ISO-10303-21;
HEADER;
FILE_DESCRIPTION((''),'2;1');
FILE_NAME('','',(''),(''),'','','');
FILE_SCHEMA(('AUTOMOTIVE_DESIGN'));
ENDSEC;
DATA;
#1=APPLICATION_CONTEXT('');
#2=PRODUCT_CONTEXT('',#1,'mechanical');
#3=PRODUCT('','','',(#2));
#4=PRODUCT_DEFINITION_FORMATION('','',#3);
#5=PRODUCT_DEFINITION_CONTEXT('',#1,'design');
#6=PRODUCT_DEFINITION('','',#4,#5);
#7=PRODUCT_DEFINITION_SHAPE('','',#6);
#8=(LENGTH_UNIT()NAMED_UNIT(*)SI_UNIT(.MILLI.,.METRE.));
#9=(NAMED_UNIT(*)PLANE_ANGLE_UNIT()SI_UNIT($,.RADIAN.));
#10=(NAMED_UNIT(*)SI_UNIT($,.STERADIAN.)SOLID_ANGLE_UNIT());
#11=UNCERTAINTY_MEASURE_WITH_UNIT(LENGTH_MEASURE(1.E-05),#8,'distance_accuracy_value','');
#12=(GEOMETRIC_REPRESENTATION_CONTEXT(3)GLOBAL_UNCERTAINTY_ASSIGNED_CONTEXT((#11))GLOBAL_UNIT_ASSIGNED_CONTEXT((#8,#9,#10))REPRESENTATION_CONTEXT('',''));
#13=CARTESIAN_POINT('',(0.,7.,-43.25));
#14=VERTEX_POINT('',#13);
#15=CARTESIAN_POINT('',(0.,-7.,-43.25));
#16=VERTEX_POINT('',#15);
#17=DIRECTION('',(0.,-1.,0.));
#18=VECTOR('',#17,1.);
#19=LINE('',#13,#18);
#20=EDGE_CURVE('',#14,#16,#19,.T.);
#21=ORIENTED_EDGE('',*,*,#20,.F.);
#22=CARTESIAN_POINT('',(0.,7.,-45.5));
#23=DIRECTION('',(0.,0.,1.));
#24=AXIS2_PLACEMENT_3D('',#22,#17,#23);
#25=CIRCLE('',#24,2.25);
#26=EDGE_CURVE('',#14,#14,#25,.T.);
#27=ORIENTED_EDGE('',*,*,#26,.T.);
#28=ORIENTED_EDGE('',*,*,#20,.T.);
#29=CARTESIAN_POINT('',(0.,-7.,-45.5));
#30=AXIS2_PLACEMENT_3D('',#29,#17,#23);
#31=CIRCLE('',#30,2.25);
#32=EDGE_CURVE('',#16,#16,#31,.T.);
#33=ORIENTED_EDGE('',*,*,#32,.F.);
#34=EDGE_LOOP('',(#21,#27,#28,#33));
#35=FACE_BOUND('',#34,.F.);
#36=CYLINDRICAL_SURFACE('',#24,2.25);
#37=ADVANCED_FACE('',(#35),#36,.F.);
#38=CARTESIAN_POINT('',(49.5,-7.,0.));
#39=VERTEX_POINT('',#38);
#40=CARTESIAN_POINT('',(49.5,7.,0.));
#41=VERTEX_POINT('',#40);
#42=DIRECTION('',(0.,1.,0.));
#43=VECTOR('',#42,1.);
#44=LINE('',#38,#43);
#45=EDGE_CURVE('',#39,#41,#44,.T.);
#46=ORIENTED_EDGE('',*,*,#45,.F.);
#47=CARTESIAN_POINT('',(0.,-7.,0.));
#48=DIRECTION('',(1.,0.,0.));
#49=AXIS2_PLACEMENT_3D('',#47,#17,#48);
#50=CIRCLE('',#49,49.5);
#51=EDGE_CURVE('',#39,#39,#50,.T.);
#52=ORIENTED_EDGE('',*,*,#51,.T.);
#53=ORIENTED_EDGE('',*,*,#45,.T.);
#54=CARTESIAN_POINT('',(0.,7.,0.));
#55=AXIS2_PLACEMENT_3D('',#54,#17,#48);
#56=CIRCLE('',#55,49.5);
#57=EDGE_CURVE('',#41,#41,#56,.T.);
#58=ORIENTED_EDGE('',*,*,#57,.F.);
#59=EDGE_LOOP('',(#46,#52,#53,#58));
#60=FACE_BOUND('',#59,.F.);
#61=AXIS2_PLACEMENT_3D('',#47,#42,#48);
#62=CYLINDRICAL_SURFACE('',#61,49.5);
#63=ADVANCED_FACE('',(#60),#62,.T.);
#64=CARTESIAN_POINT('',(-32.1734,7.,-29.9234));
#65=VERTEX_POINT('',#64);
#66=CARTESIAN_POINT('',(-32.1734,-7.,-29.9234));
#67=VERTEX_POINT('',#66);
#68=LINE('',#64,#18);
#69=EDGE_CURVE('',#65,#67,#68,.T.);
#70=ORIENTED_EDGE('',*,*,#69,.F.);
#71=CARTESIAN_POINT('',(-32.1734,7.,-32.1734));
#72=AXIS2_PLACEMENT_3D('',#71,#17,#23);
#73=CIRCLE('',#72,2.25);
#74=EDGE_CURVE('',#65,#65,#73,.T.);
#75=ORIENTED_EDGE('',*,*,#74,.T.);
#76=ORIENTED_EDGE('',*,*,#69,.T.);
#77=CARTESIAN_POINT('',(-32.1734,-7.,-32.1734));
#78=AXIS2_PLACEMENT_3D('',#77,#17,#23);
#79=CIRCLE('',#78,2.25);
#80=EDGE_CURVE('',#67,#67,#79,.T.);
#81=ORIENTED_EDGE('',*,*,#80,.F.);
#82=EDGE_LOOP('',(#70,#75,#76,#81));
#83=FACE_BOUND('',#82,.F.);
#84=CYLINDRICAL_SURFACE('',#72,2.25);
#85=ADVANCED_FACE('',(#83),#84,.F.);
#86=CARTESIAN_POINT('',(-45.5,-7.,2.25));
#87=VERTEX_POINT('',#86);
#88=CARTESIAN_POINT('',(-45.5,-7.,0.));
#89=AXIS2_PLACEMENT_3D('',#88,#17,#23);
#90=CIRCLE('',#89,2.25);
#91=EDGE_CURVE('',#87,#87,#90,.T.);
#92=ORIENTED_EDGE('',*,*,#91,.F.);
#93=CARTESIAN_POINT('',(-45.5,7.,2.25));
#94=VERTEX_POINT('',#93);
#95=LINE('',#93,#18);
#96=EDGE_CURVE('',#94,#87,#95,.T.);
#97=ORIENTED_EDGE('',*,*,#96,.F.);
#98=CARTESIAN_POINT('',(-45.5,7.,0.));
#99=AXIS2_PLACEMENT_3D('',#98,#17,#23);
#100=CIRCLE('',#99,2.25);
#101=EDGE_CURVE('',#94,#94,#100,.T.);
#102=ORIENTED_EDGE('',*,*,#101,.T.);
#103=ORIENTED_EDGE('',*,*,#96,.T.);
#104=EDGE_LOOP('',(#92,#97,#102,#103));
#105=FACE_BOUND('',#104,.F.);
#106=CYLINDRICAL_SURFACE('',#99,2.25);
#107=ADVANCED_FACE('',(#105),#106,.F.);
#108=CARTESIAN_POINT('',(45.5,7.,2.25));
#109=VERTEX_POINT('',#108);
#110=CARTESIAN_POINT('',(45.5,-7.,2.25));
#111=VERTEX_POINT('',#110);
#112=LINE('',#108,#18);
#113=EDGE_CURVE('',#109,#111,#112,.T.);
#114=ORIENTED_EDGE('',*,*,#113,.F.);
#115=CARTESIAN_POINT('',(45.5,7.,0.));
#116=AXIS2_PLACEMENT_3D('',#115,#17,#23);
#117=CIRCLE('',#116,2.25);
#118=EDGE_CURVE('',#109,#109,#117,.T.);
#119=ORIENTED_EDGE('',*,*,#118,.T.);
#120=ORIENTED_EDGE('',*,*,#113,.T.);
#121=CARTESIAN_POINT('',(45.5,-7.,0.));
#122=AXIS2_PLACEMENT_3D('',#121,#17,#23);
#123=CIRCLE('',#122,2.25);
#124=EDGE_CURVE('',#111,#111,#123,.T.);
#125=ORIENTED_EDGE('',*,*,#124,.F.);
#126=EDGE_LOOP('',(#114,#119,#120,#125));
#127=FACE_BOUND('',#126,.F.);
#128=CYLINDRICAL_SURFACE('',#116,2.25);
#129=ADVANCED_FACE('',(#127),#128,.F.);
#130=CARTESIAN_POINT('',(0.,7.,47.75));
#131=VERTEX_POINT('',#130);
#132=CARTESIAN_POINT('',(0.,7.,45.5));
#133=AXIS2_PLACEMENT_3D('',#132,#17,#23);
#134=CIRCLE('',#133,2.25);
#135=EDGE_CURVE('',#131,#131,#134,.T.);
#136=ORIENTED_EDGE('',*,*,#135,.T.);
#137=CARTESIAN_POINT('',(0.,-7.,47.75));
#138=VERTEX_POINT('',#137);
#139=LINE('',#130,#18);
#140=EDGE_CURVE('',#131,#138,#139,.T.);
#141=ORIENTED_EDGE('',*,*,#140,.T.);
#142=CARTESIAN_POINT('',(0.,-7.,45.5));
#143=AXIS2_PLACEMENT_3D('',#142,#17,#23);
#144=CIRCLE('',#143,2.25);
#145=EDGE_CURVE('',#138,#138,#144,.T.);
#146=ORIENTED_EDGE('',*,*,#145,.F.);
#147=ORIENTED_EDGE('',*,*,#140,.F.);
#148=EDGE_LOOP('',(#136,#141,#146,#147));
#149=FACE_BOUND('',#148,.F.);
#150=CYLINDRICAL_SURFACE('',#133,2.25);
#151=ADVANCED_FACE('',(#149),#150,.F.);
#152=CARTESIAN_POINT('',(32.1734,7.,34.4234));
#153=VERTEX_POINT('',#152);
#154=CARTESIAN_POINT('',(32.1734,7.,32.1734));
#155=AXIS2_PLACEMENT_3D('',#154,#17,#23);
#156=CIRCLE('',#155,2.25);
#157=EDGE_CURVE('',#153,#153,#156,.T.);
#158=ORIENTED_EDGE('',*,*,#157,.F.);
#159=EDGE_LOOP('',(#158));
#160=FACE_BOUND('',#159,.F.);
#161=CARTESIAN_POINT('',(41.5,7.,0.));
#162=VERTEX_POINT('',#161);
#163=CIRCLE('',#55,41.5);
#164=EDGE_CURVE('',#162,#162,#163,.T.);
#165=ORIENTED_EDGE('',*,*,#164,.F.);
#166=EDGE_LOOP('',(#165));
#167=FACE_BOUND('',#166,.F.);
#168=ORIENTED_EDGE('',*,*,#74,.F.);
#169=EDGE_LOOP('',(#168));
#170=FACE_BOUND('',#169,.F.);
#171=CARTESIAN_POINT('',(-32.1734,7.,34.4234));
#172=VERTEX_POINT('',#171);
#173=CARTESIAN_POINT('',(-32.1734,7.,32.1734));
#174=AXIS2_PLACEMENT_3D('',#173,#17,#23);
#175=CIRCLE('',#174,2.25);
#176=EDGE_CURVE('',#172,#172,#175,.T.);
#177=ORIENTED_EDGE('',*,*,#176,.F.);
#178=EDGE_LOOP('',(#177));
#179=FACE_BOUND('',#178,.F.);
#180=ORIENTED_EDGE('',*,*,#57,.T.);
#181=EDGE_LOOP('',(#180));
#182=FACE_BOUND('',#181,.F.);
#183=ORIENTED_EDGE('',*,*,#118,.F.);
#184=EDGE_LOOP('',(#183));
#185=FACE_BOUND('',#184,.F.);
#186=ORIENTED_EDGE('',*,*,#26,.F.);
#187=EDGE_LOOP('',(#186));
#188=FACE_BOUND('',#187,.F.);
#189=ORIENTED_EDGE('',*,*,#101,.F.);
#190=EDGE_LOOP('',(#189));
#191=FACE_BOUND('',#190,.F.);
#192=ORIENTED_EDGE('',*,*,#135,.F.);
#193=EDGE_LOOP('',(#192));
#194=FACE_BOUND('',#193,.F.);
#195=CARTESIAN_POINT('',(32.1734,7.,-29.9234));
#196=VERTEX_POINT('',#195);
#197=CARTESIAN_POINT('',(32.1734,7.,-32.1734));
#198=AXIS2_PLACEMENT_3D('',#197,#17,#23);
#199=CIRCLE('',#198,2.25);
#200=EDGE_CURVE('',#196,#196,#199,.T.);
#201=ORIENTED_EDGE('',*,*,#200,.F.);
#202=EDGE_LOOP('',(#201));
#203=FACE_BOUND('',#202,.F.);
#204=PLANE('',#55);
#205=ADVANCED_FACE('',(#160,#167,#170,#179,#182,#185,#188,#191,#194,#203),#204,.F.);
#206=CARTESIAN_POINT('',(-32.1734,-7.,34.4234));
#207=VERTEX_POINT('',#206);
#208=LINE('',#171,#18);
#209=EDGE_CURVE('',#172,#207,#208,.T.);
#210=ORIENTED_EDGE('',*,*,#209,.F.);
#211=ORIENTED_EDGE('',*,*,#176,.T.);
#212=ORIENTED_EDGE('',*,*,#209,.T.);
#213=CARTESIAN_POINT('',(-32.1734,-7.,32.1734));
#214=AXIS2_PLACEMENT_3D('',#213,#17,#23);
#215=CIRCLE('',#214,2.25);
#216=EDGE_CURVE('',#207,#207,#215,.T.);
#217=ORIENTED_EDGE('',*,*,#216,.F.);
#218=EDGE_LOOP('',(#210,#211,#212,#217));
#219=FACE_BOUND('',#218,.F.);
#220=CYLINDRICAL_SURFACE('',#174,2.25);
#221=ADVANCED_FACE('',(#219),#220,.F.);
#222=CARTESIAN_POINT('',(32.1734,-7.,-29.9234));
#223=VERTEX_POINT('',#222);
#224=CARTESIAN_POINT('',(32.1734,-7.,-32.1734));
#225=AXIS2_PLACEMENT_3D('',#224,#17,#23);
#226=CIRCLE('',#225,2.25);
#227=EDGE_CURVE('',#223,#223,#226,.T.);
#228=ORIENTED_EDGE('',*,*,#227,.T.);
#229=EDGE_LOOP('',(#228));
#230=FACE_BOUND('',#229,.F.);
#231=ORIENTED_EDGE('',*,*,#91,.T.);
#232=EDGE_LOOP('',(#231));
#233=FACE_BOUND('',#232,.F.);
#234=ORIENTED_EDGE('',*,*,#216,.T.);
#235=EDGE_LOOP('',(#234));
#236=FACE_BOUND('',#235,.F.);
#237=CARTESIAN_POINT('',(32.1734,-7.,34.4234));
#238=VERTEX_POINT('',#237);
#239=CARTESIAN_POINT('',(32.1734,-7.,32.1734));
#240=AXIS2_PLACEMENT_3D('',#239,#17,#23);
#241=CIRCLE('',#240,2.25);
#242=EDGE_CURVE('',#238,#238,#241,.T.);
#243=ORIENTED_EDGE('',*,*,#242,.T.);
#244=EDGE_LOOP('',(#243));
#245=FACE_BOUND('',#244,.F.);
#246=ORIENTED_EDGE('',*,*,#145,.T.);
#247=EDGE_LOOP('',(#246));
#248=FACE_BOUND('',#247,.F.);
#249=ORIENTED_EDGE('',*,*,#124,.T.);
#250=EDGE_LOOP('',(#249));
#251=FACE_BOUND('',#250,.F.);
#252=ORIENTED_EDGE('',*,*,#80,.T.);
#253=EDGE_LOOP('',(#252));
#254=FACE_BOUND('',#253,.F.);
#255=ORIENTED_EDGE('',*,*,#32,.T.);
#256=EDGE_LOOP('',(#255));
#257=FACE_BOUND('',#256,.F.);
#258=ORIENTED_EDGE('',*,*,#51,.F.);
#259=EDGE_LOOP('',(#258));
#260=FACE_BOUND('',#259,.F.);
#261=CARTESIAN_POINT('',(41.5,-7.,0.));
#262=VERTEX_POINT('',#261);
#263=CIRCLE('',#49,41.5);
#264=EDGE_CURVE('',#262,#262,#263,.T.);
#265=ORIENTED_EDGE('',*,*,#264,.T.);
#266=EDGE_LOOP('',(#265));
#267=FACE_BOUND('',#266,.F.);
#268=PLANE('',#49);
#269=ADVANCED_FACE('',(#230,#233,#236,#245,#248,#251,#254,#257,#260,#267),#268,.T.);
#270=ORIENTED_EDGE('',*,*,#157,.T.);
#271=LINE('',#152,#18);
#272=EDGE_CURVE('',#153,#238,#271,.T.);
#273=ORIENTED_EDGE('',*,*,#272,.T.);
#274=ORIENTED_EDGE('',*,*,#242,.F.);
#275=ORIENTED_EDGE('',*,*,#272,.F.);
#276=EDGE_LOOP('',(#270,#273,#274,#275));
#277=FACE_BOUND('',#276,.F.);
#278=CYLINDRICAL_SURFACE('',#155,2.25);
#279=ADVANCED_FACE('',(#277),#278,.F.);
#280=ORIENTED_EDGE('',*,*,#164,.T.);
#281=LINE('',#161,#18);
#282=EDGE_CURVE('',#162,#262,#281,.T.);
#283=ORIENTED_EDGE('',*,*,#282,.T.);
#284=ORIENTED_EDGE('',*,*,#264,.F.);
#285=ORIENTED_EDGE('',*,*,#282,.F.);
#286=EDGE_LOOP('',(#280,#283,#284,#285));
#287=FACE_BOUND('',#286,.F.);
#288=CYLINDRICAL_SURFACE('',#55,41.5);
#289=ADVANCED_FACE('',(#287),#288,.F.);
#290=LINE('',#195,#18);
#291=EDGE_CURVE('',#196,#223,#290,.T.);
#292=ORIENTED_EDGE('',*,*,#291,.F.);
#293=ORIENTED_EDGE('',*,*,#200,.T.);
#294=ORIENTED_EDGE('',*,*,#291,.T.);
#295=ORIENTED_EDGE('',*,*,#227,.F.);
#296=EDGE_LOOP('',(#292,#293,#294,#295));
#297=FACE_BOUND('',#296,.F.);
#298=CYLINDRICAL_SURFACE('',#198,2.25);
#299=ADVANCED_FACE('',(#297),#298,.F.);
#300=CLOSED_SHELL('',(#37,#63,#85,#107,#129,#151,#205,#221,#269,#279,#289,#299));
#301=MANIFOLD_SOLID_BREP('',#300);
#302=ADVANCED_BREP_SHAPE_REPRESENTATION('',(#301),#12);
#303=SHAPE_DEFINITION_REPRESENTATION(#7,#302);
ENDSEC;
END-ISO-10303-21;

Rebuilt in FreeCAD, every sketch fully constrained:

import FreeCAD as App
import Part
import Sketcher

V = App.Vector
Q = App.Units.Quantity


def add_polygon(sketch, points):
    """Adds a closed chain of lines whose ends are joined by coincident constraints."""
    first, n = sketch.GeometryCount, len(points)
    for a, b in zip(points, points[1:] + points[:1]):
        sketch.addGeometry(Part.LineSegment(App.Vector(*a, 0), App.Vector(*b, 0)), False)
    for i in range(n):
        sketch.addConstraint(Sketcher.Constraint("Coincident", first + i, 2, first + (i + 1) % n, 1))

doc = App.newDocument("Part")
body = doc.addObject("PartDesign::Body", "Body")

# Sketch on XY plane
sketch1 = body.newObject("Sketcher::SketchObject", "Sketch")
sketch1.AttachmentSupport = (doc.getObject("XY_Plane"), [""])
sketch1.MapMode = "FlatFace"
add_polygon(sketch1, [(49.5, 7), (41.5, 7), (41.5, -7), (49.5, -7)])  # lines 0-3
sketch1.addConstraint(Sketcher.Constraint("Horizontal", 0))
sketch1.addConstraint(Sketcher.Constraint("Vertical", 1))
sketch1.addConstraint(Sketcher.Constraint("Horizontal", 2))
sketch1.addConstraint(Sketcher.Constraint("Vertical", 3))
sketch1.addConstraint(Sketcher.Constraint("DistanceY", 1, 2, 1, 1, Q("14 mm")))
sketch1.addConstraint(Sketcher.Constraint("DistanceX", 0, 2, 0, 1, Q("8 mm")))
sketch1.addConstraint(Sketcher.Constraint("DistanceY", -1, 1, 0, 2, Q("7 mm")))
sketch1.addConstraint(Sketcher.Constraint("DistanceX", -1, 1, 0, 2, Q("41.5 mm")))
revolution = body.newObject("PartDesign::Revolution", "Revolution")
revolution.Profile = sketch1
revolution.ReferenceAxis = (sketch1, ["V_Axis"])
revolution.Angle = 360

# Sketch on XZ plane
sketch2 = body.newObject("Sketcher::SketchObject", "Sketch001")
sketch2.AttachmentSupport = (doc.getObject("XZ_Plane"), [""])
sketch2.MapMode = "FlatFace"
sketch2.AttachmentOffset = App.Placement(V(0, 0, -7), App.Rotation())
sketch2.addGeometry(Part.Circle(V(-45.5, 0, 0), V(0, 0, 1), 2.25), False)
sketch2.addGeometry(Part.Circle(V(-32.1734, 32.1734, 0), V(0, 0, 1), 2.25), False)
sketch2.addGeometry(Part.Circle(V(0, 45.5, 0), V(0, 0, 1), 2.25), False)
sketch2.addGeometry(Part.Circle(V(32.1734, 32.1734, 0), V(0, 0, 1), 2.25), False)
sketch2.addGeometry(Part.Circle(V(45.5, 0, 0), V(0, 0, 1), 2.25), False)
sketch2.addGeometry(Part.Circle(V(32.1734, -32.1734, 0), V(0, 0, 1), 2.25), False)
sketch2.addGeometry(Part.Circle(V(0, -45.5, 0), V(0, 0, 1), 2.25), False)
sketch2.addGeometry(Part.Circle(V(-32.1734, -32.1734, 0), V(0, 0, 1), 2.25), False)
sketch2.addConstraint(Sketcher.Constraint("Equal", 0, 1))
sketch2.addConstraint(Sketcher.Constraint("Equal", 1, 2))
sketch2.addConstraint(Sketcher.Constraint("Equal", 2, 3))
sketch2.addConstraint(Sketcher.Constraint("Equal", 3, 4))
sketch2.addConstraint(Sketcher.Constraint("Equal", 4, 5))
sketch2.addConstraint(Sketcher.Constraint("Equal", 5, 6))
sketch2.addConstraint(Sketcher.Constraint("Equal", 6, 7))
sketch2.addConstraint(Sketcher.Constraint("Symmetric", 0, 3, 4, 3, -1, 1))
sketch2.addConstraint(Sketcher.Constraint("Symmetric", 1, 3, 5, 3, -1, 1))
sketch2.addConstraint(Sketcher.Constraint("Symmetric", 2, 3, 6, 3, -1, 1))
sketch2.addConstraint(Sketcher.Constraint("Symmetric", 3, 3, 7, 3, -1, 1))
sketch2.addConstraint(Sketcher.Constraint("Symmetric", 1, 3, 3, 3, -2))
sketch2.addConstraint(Sketcher.Constraint("PointOnObject", 0, 3, -1))
sketch2.addConstraint(Sketcher.Constraint("PointOnObject", 2, 3, -2))
sketch2.addConstraint(Sketcher.Constraint("Diameter", 0, Q("4.5 mm")))
sketch2.addConstraint(Sketcher.Constraint("DistanceX", 0, 3, 4, 3, Q("91 mm")))
sketch2.addConstraint(Sketcher.Constraint("DistanceY", -1, 1, 2, 3, Q("45.5 mm")))
sketch2.addConstraint(Sketcher.Constraint("DistanceX", 1, 3, -1, 1, Q("32.1734 mm")))
sketch2.addConstraint(Sketcher.Constraint("DistanceY", -1, 1, 1, 3, Q("32.1734 mm")))
doc.recompute()
hole = body.newObject("PartDesign::Hole", "Hole")
hole.Profile = sketch2
hole.ThreadType = "None"
hole.Diameter = 4.5
hole.DepthType = "ThroughAll"
hole.Reversed = True

doc.recompute()
